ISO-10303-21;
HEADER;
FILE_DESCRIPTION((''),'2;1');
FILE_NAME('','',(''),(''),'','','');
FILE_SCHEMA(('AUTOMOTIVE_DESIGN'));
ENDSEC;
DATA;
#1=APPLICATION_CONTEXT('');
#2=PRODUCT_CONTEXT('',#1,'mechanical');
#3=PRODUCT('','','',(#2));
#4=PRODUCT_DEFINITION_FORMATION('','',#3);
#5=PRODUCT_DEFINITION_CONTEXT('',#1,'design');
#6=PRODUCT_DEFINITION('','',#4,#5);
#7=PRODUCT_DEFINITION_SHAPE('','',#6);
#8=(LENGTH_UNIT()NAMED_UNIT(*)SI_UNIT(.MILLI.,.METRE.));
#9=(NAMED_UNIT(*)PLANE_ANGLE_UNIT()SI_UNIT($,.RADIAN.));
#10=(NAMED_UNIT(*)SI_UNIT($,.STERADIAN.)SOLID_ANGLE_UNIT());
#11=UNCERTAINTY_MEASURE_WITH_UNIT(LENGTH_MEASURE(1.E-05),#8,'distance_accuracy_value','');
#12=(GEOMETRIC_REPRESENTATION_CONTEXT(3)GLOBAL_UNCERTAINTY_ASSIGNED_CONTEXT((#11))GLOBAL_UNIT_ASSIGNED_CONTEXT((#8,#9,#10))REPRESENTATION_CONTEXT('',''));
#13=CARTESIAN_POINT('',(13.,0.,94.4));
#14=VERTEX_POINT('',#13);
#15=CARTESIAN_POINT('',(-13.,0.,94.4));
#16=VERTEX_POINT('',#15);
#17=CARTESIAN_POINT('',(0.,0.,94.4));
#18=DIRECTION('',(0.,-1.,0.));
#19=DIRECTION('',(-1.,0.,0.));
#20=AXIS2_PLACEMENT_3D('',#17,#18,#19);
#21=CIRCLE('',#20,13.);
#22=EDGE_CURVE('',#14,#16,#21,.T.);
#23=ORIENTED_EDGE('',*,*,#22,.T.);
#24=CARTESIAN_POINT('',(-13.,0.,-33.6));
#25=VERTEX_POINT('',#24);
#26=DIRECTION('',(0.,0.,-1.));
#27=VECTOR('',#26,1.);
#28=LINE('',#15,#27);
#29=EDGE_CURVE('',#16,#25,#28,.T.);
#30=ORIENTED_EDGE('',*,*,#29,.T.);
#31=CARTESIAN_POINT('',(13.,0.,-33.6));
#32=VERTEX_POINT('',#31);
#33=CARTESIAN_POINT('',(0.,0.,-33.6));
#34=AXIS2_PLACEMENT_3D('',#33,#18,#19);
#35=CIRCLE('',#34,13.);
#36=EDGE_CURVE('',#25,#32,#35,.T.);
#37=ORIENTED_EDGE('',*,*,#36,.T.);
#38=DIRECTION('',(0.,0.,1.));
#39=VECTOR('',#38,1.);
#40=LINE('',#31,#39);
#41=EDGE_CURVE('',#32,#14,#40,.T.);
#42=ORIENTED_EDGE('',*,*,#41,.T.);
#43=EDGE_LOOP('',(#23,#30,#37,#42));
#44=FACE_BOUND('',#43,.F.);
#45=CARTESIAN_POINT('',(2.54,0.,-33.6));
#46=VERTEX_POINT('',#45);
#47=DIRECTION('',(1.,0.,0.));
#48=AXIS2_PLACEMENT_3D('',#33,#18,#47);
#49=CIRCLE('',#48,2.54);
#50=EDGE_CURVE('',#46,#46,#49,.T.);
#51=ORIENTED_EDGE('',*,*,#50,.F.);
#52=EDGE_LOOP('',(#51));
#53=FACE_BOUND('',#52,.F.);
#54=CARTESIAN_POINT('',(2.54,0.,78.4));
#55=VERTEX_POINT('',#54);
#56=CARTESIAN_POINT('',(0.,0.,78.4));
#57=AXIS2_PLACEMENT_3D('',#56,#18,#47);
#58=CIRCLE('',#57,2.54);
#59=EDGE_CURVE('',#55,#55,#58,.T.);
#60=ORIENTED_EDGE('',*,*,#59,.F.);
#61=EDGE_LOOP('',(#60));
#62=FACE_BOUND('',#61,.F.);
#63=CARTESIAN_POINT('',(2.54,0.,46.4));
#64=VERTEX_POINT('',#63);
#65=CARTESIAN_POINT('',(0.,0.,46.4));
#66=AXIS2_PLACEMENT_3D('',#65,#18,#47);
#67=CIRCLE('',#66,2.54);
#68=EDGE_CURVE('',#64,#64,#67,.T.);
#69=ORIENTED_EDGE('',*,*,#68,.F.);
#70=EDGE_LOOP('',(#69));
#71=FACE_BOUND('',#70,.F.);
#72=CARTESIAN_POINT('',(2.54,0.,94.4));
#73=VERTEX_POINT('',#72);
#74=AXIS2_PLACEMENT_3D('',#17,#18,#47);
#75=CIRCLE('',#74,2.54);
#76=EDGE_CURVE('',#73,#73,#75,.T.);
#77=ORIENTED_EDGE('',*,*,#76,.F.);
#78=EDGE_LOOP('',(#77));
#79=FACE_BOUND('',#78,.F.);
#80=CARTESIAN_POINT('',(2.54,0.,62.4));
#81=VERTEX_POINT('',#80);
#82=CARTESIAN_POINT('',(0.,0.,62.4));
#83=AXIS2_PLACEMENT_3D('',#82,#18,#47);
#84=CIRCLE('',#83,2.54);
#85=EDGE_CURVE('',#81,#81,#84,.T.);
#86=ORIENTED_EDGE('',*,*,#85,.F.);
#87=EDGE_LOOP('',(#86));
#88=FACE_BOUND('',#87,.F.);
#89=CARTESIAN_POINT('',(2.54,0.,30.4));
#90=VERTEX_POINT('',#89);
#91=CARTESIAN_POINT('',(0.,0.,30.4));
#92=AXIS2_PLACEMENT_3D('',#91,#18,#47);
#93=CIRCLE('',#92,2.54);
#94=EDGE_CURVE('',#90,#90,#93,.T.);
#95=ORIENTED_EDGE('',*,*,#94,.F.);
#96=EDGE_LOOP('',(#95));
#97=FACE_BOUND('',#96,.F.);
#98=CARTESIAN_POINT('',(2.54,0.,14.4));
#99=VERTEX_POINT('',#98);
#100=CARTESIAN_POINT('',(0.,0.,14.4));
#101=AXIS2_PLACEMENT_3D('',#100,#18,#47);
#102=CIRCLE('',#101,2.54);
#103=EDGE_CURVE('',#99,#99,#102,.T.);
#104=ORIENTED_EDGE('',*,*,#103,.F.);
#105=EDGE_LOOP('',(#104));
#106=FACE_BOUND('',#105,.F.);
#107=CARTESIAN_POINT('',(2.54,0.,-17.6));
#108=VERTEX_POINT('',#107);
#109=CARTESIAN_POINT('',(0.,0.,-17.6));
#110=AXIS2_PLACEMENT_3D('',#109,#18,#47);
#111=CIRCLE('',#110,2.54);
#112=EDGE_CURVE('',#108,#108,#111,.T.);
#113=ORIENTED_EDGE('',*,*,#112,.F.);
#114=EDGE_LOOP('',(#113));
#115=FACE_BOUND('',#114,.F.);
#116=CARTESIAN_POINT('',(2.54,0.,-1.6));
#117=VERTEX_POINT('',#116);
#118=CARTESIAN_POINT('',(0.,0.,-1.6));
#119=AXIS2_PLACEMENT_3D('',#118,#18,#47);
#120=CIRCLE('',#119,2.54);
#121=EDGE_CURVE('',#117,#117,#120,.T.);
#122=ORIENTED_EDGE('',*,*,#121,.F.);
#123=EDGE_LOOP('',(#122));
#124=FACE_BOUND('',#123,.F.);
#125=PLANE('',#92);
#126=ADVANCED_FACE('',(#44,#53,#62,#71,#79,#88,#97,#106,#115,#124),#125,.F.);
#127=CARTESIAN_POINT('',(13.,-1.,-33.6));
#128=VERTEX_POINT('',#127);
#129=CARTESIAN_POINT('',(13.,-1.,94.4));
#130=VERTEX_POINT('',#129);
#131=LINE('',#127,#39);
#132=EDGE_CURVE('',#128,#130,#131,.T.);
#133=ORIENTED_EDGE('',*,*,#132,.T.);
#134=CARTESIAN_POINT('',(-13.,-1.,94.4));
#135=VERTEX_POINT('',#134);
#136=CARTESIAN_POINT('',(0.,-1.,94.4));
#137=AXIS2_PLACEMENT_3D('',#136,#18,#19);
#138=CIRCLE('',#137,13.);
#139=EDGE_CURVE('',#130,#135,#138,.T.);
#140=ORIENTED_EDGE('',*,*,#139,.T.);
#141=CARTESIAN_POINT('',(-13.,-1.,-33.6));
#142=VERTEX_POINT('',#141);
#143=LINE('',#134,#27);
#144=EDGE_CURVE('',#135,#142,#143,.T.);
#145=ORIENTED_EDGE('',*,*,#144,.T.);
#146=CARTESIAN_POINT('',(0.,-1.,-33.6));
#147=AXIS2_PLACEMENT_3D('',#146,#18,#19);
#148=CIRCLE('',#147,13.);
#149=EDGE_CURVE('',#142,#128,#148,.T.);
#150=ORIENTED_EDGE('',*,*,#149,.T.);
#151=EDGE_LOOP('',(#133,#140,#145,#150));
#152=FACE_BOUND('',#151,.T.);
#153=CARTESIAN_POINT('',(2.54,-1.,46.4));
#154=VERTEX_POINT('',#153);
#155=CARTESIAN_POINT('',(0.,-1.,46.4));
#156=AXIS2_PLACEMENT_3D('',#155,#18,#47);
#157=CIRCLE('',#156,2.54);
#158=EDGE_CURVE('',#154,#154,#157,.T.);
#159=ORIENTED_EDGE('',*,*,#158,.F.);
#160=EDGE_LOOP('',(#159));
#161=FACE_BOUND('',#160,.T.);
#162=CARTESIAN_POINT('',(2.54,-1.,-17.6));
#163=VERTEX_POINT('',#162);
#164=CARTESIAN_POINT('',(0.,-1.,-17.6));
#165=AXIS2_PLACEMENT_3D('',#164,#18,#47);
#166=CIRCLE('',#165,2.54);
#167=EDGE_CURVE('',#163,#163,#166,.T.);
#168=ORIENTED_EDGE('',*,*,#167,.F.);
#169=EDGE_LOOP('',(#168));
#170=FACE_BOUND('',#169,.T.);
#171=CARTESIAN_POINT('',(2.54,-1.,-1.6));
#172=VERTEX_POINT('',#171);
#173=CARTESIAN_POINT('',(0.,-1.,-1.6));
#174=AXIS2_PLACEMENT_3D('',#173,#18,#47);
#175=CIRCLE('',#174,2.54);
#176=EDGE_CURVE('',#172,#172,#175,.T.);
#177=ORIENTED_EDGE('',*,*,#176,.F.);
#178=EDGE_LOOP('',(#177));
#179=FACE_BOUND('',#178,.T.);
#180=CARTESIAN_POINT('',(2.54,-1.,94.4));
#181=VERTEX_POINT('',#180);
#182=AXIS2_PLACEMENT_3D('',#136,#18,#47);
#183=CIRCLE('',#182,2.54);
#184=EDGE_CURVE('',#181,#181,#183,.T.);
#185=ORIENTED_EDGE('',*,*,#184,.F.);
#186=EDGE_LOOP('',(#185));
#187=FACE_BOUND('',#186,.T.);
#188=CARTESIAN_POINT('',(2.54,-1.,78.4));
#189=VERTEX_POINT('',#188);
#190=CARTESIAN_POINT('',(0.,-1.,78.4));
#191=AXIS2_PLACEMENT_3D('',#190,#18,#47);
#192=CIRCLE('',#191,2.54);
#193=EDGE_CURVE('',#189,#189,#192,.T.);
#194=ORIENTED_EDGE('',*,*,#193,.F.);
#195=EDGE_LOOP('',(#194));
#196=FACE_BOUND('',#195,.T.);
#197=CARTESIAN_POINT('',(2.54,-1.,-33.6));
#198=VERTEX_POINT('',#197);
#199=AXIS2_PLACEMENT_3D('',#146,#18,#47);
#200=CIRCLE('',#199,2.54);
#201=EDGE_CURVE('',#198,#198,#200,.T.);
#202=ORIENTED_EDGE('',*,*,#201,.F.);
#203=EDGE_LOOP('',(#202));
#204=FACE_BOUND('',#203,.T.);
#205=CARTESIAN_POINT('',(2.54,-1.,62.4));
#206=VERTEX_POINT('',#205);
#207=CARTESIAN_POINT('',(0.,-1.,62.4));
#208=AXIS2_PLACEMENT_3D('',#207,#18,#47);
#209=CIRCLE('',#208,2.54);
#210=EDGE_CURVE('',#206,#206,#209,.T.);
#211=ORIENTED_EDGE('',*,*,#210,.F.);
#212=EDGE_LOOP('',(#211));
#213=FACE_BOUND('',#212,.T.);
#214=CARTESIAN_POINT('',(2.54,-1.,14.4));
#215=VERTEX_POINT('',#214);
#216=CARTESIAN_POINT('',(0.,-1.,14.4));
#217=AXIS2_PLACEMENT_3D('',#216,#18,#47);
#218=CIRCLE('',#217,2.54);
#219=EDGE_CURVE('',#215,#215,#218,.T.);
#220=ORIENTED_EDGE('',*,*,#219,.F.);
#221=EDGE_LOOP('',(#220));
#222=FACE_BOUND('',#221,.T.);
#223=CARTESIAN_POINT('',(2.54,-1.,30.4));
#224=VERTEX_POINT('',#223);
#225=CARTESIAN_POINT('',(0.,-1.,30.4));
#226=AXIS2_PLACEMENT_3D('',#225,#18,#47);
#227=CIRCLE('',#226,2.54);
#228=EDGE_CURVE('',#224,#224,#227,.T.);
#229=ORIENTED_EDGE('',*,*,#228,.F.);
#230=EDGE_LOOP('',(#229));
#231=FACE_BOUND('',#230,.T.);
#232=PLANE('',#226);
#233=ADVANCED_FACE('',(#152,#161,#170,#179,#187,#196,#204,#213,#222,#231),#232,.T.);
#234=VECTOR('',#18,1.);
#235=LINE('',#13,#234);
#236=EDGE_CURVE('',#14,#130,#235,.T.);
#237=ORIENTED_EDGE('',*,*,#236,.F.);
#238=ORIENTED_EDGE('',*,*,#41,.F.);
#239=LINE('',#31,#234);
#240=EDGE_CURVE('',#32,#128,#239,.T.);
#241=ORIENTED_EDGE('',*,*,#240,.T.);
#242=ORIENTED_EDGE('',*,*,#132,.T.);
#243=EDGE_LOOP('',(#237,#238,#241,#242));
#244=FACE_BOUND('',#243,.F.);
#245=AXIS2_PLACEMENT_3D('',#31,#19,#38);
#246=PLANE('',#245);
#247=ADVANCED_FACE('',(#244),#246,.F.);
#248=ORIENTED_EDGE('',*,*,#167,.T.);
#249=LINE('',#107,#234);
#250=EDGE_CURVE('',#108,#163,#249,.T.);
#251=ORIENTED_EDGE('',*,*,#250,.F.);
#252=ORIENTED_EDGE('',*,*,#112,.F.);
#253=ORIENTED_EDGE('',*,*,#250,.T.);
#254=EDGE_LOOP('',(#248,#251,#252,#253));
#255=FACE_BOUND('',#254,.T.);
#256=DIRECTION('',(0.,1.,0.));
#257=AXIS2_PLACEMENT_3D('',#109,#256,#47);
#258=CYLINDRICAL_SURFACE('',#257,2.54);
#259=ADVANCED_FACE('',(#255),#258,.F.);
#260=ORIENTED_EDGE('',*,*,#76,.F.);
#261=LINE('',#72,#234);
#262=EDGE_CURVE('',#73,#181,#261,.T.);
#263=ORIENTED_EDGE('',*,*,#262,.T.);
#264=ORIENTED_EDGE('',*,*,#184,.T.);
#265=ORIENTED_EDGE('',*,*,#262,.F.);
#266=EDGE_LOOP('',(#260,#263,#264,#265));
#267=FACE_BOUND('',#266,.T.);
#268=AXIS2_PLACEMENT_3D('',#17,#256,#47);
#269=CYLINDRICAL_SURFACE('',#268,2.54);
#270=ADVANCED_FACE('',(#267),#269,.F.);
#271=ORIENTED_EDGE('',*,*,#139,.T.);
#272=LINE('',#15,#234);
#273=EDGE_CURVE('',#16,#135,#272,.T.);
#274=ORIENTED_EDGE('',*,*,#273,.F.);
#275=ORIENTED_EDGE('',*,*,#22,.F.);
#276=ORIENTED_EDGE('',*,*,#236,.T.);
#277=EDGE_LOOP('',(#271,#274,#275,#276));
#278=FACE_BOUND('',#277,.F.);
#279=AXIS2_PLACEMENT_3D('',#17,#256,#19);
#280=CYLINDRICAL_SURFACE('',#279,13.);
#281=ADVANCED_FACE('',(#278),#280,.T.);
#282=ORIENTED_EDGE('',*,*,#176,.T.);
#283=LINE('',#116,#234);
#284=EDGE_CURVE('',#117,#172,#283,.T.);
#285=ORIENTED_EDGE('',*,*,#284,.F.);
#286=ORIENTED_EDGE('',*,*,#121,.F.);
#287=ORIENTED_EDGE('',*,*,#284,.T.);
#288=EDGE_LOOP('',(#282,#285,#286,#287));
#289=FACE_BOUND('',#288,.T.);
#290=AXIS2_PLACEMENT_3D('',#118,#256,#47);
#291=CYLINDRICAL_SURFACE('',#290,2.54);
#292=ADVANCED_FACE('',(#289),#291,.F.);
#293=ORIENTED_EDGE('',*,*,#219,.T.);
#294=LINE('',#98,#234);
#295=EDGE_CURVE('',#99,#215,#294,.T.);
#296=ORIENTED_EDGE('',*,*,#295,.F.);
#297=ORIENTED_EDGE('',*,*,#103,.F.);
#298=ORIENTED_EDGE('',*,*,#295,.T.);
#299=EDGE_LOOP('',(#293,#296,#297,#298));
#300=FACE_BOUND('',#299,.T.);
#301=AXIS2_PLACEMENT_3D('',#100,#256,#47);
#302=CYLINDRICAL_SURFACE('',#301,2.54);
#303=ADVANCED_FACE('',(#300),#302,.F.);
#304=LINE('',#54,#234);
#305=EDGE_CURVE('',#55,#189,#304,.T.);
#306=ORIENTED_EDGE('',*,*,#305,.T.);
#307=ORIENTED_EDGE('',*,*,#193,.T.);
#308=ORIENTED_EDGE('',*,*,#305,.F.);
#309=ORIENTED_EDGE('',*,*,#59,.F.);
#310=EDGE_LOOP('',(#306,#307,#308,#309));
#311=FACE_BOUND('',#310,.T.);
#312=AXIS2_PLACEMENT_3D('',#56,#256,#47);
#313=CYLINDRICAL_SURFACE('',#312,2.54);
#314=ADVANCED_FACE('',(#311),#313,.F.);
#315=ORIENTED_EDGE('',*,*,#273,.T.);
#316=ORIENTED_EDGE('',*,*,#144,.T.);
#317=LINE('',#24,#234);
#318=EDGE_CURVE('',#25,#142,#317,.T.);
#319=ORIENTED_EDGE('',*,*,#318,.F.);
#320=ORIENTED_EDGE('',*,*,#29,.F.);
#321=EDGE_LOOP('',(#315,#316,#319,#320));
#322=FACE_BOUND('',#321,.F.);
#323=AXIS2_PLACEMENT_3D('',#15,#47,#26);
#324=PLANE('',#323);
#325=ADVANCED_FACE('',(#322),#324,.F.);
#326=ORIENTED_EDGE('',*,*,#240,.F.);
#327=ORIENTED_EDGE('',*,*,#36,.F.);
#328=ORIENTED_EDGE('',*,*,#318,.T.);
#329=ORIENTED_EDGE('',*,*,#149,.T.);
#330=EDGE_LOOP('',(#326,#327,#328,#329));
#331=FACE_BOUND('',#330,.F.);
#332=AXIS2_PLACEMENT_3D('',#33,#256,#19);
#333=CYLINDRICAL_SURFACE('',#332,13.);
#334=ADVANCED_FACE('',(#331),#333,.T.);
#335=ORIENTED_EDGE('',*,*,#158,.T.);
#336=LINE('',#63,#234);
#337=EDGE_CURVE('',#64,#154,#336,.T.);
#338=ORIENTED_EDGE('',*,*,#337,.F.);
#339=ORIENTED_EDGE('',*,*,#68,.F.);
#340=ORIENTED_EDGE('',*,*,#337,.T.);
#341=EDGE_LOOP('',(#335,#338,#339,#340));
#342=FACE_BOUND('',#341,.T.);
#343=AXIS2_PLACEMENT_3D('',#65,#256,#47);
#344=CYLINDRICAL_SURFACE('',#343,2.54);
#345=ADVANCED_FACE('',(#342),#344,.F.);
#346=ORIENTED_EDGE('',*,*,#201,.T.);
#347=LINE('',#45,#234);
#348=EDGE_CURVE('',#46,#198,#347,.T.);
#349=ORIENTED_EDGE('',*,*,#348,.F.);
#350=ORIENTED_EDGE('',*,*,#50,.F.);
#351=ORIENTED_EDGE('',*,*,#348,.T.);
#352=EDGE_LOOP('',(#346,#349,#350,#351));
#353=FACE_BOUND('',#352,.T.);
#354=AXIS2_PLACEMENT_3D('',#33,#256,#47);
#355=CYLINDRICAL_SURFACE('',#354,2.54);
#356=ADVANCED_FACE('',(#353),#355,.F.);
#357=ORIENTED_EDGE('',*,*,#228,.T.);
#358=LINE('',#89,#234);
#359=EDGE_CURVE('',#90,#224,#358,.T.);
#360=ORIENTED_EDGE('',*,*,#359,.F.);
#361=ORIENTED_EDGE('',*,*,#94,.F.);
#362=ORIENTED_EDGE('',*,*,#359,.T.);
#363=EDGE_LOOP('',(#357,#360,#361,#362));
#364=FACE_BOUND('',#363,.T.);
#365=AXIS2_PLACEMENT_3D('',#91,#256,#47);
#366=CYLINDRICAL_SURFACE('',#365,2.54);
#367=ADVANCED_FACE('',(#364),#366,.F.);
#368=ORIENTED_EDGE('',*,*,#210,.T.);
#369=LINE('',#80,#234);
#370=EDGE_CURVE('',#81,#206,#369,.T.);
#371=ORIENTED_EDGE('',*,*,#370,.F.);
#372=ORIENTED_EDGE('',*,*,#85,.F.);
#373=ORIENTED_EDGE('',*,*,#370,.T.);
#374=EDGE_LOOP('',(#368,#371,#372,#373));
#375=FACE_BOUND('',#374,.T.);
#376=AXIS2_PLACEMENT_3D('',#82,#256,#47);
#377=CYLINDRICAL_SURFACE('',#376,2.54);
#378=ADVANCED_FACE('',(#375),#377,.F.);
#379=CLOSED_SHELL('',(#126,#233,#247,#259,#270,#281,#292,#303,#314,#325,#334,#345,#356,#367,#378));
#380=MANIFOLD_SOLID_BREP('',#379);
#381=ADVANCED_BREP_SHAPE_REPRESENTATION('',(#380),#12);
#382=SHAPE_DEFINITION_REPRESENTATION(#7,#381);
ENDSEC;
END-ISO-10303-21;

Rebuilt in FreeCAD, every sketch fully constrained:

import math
import FreeCAD as App
import Part
import Sketcher
from FreeCAD import Vector

doc = App.newDocument("Part")
body = doc.addObject("PartDesign::Body", "Body")

# Sketch on XZ plane
sketch1 = body.newObject("Sketcher::SketchObject", "Sketch")
sketch1.AttachmentSupport = (doc.getObject("XZ_Plane"), [""])
sketch1.MapMode = "FlatFace"
sketch1.addGeometry(Part.LineSegment(Vector(13, -33.6, 0), Vector(13, 94.4, 0)), False)
sketch1.addGeometry(Part.ArcOfCircle(Part.Circle(Vector(0, 94.4, 0), Vector(0, 0, 1), 13), math.radians(0), math.radians(180)), False)
sketch1.addGeometry(Part.LineSegment(Vector(-13, 94.4, 0), Vector(-13, -33.6, 0)), False)
sketch1.addGeometry(Part.ArcOfCircle(Part.Circle(Vector(0, -33.6, 0), Vector(0, 0, 1), 13), math.radians(180), math.radians(360)), False)
sketch1.addGeometry(Part.Circle(Vector(0, -33.6, 0), Vector(0, 0, 1), 2.5), False)
sketch1.addGeometry(Part.Circle(Vector(0, -17.6, 0), Vector(0, 0, 1), 2.5), False)
sketch1.addGeometry(Part.Circle(Vector(0, -1.6, 0), Vector(0, 0, 1), 2.5), False)
sketch1.addGeometry(Part.Circle(Vector(0, 14.4, 0), Vector(0, 0, 1), 2.5), False)
sketch1.addGeometry(Part.Circle(Vector(0, 30.4, 0), Vector(0, 0, 1), 2.5), False)
sketch1.addGeometry(Part.Circle(Vector(0, 46.4, 0), Vector(0, 0, 1), 2.5), False)
sketch1.addGeometry(Part.Circle(Vector(0, 62.4, 0), Vector(0, 0, 1), 2.5), False)
sketch1.addGeometry(Part.Circle(Vector(0, 78.4, 0), Vector(0, 0, 1), 2.5), False)
sketch1.addGeometry(Part.Circle(Vector(0, 94.4, 0), Vector(0, 0, 1), 2.5), False)
sketch1.addConstraint(Sketcher.Constraint("Tangent", 0, 2, 1, 1))
sketch1.addConstraint(Sketcher.Constraint("Tangent", 1, 2, 2, 1))
sketch1.addConstraint(Sketcher.Constraint("Tangent", 2, 2, 3, 1))
sketch1.addConstraint(Sketcher.Constraint("Tangent", 3, 2, 0, 1))
sketch1.addConstraint(Sketcher.Constraint("Vertical", 0))
sketch1.addConstraint(Sketcher.Constraint("Vertical", 2))
sketch1.addConstraint(Sketcher.Constraint("Coincident", 4, 3, 3, 3))
sketch1.addConstraint(Sketcher.Constraint("Coincident", 12, 3, 1, 3))
sketch1.addConstraint(Sketcher.Constraint("Equal", 4, 5))
sketch1.addConstraint(Sketcher.Constraint("Equal", 5, 6))
sketch1.addConstraint(Sketcher.Constraint("Equal", 6, 7))
sketch1.addConstraint(Sketcher.Constraint("Equal", 7, 8))
sketch1.addConstraint(Sketcher.Constraint("Equal", 8, 9))
sketch1.addConstraint(Sketcher.Constraint("Equal", 9, 10))
sketch1.addConstraint(Sketcher.Constraint("Equal", 10, 11))
sketch1.addConstraint(Sketcher.Constraint("Equal", 11, 12))
sketch1.addConstraint(Sketcher.Constraint("PointOnObject", 1, 3, -2))
sketch1.addConstraint(Sketcher.Constraint("PointOnObject", 5, 3, -2))
sketch1.addConstraint(Sketcher.Constraint("PointOnObject", 6, 3, -2))
sketch1.addConstraint(Sketcher.Constraint("PointOnObject", 7, 3, -2))
sketch1.addConstraint(Sketcher.Constraint("PointOnObject", 8, 3, -2))
sketch1.addConstraint(Sketcher.Constraint("PointOnObject", 9, 3, -2))
sketch1.addConstraint(Sketcher.Constraint("PointOnObject", 10, 3, -2))
sketch1.addConstraint(Sketcher.Constraint("PointOnObject", 11, 3, -2))
sketch1.addConstraint(Sketcher.Constraint("Radius", 1, 13.0))
sketch1.addConstraint(Sketcher.Constraint("Diameter", 4, 5.08))
sketch1.addConstraint(Sketcher.Constraint("DistanceY", 0, 1, 0, 2, 128.0))
sketch1.addConstraint(Sketcher.Constraint("DistanceY", 3, 3, 5, 3, 16.0))
sketch1.addConstraint(Sketcher.Constraint("DistanceY", 5, 3, 6, 3, 16.0))
sketch1.addConstraint(Sketcher.Constraint("DistanceY", 6, 3, 7, 3, 16.0))
sketch1.addConstraint(Sketcher.Constraint("DistanceY", 7, 3, 8, 3, 16.0))
sketch1.addConstraint(Sketcher.Constraint("DistanceY", 8, 3, 9, 3, 16.0))
sketch1.addConstraint(Sketcher.Constraint("DistanceY", 9, 3, 10, 3, 16.0))
sketch1.addConstraint(Sketcher.Constraint("DistanceY", 11, 3, 1, 3, 16.0))
sketch1.addConstraint(Sketcher.Constraint("DistanceY", -1, 1, 1, 3, 94.4))
pad1 = body.newObject("PartDesign::Pad", "Pad")
pad1.Profile = sketch1
pad1.Length = 1

doc.recompute()
